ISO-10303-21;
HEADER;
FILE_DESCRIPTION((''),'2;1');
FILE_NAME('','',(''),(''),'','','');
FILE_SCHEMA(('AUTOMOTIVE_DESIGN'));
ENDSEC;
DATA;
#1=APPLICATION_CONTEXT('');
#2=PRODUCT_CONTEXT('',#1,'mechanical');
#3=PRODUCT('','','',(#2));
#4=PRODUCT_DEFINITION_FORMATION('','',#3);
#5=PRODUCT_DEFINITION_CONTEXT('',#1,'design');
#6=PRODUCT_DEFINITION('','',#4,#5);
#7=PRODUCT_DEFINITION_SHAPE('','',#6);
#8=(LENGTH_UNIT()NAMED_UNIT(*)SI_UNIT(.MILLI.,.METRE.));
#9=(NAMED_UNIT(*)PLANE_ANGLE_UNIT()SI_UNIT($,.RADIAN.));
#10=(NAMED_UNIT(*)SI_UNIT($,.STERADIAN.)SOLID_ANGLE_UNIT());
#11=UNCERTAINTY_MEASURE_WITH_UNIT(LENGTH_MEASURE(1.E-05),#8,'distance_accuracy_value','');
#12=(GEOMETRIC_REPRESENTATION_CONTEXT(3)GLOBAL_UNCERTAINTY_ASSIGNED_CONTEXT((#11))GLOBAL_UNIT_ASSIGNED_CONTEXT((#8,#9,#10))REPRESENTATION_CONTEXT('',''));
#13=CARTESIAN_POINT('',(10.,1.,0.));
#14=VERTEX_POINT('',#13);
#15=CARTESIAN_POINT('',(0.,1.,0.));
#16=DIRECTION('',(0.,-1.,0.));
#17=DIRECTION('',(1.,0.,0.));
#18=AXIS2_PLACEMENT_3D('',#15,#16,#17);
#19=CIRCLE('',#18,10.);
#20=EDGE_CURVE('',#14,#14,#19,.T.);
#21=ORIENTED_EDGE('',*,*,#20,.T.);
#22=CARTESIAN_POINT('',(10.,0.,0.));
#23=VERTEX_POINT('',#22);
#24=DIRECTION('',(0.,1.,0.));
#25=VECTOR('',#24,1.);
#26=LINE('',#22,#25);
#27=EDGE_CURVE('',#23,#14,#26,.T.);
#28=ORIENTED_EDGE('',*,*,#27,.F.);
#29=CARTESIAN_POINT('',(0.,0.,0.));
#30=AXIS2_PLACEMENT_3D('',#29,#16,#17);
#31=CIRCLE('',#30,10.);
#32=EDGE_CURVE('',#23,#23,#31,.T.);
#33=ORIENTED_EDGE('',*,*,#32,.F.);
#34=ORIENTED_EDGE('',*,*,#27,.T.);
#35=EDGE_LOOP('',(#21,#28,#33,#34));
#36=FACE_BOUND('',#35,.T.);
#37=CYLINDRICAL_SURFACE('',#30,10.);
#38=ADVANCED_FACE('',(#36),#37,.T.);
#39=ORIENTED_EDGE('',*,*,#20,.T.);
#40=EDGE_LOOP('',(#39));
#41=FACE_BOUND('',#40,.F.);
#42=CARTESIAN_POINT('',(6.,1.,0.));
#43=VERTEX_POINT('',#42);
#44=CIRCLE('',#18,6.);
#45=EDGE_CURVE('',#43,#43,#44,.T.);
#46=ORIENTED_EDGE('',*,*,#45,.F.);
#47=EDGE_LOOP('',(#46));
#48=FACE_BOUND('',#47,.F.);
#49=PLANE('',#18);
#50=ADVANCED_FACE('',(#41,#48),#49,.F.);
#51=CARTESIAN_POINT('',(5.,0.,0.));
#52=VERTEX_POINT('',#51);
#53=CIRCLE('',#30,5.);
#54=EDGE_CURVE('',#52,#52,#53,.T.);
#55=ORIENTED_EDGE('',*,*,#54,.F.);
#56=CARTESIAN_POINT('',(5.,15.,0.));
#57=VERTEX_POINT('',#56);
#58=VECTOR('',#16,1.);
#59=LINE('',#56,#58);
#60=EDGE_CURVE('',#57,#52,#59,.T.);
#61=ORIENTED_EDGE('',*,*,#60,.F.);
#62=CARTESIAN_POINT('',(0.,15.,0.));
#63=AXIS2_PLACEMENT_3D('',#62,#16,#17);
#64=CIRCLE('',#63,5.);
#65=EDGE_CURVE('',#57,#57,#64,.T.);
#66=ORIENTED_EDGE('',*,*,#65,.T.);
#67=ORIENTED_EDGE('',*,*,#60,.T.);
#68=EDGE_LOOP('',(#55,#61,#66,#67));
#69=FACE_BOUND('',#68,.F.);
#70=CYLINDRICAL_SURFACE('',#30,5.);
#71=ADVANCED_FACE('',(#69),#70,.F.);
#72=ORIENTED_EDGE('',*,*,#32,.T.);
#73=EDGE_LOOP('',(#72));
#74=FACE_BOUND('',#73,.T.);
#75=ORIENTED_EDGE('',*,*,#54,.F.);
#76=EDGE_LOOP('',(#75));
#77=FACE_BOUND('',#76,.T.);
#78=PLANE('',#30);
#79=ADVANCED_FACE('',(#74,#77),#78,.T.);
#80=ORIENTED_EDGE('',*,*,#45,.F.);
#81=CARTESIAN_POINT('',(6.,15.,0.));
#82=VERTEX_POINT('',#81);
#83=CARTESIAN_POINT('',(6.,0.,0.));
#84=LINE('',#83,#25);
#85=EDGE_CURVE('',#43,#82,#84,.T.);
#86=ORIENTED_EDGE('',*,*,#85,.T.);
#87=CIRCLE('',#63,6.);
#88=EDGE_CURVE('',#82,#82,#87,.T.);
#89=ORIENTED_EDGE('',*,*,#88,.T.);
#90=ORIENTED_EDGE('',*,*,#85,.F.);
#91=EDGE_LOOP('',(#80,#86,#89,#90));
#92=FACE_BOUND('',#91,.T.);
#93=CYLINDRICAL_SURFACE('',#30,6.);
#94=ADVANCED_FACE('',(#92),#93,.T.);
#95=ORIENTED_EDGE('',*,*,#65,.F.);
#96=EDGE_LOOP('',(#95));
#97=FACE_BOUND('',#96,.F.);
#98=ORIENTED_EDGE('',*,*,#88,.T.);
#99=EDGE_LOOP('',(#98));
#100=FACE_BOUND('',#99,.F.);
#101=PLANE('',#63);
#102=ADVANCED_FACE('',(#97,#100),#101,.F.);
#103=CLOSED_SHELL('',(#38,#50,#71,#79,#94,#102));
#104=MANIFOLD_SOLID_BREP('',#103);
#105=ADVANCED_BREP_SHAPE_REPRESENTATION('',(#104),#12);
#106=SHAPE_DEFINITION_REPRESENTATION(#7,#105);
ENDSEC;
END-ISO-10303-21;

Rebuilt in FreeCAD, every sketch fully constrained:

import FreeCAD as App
import Part
import Sketcher

V = App.Vector
Q = App.Units.Quantity

doc = App.newDocument("Part")
params = doc.addObject("Spreadsheet::Sheet", "Params")
for row, (alias, value) in enumerate([
    ("sketch1_diameter", "12 mm"),
    ("sketch1_diameter2", "10 mm"),
    ("pad1_length", "15 mm"),
    ("sketch2_diameter", "20 mm"),
    ("sketch2_diameter2", "10 mm"),
    ("pad2_length", "1 mm"),
], start=1):
    params.set(f"A{row}", alias)
    params.set(f"B{row}", "=" + value)
    params.setAlias(f"B{row}", alias)

body = doc.addObject("PartDesign::Body", "Body")

# Sketch on XZ plane
sketch1 = body.newObject("Sketcher::SketchObject", "Sketch")
sketch1.AttachmentSupport = (doc.getObject("XZ_Plane"), [""])
sketch1.MapMode = "FlatFace"
sketch1.addGeometry([
    Part.Circle(V(0, 0, 0), V(0, 0, 1), 6),
    Part.Circle(V(0, 0, 0), V(0, 0, 1), 5),
], False)
sketch1.addConstraint([
    Sketcher.Constraint("Coincident", 0, 3, -1, 1),
    Sketcher.Constraint("Coincident", 1, 3, -1, 1),
    Sketcher.Constraint("Diameter", 0, Q("12 mm")),
    Sketcher.Constraint("Diameter", 1, Q("10 mm")),
])
sketch1.setExpression("Constraints[2]", "Params.sketch1_diameter")
sketch1.setExpression("Constraints[3]", "Params.sketch1_diameter2")
pad1 = body.newObject("PartDesign::Pad", "Pad")
pad1.Profile = sketch1
pad1.setExpression("Length", "Params.pad1_length")
pad1.Reversed = True

# Sketch on XZ plane
sketch2 = body.newObject("Sketcher::SketchObject", "Sketch001")
sketch2.AttachmentSupport = (doc.getObject("XZ_Plane"), [""])
sketch2.MapMode = "FlatFace"
sketch2.addGeometry([
    Part.Circle(V(0, 0, 0), V(0, 0, 1), 10),
    Part.Circle(V(0, 0, 0), V(0, 0, 1), 5),
], False)
sketch2.addConstraint([
    Sketcher.Constraint("Coincident", 0, 3, -1, 1),
    Sketcher.Constraint("Coincident", 1, 3, -1, 1),
    Sketcher.Constraint("Diameter", 0, Q("20 mm")),
    Sketcher.Constraint("Diameter", 1, Q("10 mm")),
])
sketch2.setExpression("Constraints[2]", "Params.sketch2_diameter")
sketch2.setExpression("Constraints[3]", "Params.sketch2_diameter2")
pad2 = body.newObject("PartDesign::Pad", "Pad001")
pad2.Profile = sketch2
pad2.setExpression("Length", "Params.pad2_length")
pad2.Reversed = True

doc.recompute()
